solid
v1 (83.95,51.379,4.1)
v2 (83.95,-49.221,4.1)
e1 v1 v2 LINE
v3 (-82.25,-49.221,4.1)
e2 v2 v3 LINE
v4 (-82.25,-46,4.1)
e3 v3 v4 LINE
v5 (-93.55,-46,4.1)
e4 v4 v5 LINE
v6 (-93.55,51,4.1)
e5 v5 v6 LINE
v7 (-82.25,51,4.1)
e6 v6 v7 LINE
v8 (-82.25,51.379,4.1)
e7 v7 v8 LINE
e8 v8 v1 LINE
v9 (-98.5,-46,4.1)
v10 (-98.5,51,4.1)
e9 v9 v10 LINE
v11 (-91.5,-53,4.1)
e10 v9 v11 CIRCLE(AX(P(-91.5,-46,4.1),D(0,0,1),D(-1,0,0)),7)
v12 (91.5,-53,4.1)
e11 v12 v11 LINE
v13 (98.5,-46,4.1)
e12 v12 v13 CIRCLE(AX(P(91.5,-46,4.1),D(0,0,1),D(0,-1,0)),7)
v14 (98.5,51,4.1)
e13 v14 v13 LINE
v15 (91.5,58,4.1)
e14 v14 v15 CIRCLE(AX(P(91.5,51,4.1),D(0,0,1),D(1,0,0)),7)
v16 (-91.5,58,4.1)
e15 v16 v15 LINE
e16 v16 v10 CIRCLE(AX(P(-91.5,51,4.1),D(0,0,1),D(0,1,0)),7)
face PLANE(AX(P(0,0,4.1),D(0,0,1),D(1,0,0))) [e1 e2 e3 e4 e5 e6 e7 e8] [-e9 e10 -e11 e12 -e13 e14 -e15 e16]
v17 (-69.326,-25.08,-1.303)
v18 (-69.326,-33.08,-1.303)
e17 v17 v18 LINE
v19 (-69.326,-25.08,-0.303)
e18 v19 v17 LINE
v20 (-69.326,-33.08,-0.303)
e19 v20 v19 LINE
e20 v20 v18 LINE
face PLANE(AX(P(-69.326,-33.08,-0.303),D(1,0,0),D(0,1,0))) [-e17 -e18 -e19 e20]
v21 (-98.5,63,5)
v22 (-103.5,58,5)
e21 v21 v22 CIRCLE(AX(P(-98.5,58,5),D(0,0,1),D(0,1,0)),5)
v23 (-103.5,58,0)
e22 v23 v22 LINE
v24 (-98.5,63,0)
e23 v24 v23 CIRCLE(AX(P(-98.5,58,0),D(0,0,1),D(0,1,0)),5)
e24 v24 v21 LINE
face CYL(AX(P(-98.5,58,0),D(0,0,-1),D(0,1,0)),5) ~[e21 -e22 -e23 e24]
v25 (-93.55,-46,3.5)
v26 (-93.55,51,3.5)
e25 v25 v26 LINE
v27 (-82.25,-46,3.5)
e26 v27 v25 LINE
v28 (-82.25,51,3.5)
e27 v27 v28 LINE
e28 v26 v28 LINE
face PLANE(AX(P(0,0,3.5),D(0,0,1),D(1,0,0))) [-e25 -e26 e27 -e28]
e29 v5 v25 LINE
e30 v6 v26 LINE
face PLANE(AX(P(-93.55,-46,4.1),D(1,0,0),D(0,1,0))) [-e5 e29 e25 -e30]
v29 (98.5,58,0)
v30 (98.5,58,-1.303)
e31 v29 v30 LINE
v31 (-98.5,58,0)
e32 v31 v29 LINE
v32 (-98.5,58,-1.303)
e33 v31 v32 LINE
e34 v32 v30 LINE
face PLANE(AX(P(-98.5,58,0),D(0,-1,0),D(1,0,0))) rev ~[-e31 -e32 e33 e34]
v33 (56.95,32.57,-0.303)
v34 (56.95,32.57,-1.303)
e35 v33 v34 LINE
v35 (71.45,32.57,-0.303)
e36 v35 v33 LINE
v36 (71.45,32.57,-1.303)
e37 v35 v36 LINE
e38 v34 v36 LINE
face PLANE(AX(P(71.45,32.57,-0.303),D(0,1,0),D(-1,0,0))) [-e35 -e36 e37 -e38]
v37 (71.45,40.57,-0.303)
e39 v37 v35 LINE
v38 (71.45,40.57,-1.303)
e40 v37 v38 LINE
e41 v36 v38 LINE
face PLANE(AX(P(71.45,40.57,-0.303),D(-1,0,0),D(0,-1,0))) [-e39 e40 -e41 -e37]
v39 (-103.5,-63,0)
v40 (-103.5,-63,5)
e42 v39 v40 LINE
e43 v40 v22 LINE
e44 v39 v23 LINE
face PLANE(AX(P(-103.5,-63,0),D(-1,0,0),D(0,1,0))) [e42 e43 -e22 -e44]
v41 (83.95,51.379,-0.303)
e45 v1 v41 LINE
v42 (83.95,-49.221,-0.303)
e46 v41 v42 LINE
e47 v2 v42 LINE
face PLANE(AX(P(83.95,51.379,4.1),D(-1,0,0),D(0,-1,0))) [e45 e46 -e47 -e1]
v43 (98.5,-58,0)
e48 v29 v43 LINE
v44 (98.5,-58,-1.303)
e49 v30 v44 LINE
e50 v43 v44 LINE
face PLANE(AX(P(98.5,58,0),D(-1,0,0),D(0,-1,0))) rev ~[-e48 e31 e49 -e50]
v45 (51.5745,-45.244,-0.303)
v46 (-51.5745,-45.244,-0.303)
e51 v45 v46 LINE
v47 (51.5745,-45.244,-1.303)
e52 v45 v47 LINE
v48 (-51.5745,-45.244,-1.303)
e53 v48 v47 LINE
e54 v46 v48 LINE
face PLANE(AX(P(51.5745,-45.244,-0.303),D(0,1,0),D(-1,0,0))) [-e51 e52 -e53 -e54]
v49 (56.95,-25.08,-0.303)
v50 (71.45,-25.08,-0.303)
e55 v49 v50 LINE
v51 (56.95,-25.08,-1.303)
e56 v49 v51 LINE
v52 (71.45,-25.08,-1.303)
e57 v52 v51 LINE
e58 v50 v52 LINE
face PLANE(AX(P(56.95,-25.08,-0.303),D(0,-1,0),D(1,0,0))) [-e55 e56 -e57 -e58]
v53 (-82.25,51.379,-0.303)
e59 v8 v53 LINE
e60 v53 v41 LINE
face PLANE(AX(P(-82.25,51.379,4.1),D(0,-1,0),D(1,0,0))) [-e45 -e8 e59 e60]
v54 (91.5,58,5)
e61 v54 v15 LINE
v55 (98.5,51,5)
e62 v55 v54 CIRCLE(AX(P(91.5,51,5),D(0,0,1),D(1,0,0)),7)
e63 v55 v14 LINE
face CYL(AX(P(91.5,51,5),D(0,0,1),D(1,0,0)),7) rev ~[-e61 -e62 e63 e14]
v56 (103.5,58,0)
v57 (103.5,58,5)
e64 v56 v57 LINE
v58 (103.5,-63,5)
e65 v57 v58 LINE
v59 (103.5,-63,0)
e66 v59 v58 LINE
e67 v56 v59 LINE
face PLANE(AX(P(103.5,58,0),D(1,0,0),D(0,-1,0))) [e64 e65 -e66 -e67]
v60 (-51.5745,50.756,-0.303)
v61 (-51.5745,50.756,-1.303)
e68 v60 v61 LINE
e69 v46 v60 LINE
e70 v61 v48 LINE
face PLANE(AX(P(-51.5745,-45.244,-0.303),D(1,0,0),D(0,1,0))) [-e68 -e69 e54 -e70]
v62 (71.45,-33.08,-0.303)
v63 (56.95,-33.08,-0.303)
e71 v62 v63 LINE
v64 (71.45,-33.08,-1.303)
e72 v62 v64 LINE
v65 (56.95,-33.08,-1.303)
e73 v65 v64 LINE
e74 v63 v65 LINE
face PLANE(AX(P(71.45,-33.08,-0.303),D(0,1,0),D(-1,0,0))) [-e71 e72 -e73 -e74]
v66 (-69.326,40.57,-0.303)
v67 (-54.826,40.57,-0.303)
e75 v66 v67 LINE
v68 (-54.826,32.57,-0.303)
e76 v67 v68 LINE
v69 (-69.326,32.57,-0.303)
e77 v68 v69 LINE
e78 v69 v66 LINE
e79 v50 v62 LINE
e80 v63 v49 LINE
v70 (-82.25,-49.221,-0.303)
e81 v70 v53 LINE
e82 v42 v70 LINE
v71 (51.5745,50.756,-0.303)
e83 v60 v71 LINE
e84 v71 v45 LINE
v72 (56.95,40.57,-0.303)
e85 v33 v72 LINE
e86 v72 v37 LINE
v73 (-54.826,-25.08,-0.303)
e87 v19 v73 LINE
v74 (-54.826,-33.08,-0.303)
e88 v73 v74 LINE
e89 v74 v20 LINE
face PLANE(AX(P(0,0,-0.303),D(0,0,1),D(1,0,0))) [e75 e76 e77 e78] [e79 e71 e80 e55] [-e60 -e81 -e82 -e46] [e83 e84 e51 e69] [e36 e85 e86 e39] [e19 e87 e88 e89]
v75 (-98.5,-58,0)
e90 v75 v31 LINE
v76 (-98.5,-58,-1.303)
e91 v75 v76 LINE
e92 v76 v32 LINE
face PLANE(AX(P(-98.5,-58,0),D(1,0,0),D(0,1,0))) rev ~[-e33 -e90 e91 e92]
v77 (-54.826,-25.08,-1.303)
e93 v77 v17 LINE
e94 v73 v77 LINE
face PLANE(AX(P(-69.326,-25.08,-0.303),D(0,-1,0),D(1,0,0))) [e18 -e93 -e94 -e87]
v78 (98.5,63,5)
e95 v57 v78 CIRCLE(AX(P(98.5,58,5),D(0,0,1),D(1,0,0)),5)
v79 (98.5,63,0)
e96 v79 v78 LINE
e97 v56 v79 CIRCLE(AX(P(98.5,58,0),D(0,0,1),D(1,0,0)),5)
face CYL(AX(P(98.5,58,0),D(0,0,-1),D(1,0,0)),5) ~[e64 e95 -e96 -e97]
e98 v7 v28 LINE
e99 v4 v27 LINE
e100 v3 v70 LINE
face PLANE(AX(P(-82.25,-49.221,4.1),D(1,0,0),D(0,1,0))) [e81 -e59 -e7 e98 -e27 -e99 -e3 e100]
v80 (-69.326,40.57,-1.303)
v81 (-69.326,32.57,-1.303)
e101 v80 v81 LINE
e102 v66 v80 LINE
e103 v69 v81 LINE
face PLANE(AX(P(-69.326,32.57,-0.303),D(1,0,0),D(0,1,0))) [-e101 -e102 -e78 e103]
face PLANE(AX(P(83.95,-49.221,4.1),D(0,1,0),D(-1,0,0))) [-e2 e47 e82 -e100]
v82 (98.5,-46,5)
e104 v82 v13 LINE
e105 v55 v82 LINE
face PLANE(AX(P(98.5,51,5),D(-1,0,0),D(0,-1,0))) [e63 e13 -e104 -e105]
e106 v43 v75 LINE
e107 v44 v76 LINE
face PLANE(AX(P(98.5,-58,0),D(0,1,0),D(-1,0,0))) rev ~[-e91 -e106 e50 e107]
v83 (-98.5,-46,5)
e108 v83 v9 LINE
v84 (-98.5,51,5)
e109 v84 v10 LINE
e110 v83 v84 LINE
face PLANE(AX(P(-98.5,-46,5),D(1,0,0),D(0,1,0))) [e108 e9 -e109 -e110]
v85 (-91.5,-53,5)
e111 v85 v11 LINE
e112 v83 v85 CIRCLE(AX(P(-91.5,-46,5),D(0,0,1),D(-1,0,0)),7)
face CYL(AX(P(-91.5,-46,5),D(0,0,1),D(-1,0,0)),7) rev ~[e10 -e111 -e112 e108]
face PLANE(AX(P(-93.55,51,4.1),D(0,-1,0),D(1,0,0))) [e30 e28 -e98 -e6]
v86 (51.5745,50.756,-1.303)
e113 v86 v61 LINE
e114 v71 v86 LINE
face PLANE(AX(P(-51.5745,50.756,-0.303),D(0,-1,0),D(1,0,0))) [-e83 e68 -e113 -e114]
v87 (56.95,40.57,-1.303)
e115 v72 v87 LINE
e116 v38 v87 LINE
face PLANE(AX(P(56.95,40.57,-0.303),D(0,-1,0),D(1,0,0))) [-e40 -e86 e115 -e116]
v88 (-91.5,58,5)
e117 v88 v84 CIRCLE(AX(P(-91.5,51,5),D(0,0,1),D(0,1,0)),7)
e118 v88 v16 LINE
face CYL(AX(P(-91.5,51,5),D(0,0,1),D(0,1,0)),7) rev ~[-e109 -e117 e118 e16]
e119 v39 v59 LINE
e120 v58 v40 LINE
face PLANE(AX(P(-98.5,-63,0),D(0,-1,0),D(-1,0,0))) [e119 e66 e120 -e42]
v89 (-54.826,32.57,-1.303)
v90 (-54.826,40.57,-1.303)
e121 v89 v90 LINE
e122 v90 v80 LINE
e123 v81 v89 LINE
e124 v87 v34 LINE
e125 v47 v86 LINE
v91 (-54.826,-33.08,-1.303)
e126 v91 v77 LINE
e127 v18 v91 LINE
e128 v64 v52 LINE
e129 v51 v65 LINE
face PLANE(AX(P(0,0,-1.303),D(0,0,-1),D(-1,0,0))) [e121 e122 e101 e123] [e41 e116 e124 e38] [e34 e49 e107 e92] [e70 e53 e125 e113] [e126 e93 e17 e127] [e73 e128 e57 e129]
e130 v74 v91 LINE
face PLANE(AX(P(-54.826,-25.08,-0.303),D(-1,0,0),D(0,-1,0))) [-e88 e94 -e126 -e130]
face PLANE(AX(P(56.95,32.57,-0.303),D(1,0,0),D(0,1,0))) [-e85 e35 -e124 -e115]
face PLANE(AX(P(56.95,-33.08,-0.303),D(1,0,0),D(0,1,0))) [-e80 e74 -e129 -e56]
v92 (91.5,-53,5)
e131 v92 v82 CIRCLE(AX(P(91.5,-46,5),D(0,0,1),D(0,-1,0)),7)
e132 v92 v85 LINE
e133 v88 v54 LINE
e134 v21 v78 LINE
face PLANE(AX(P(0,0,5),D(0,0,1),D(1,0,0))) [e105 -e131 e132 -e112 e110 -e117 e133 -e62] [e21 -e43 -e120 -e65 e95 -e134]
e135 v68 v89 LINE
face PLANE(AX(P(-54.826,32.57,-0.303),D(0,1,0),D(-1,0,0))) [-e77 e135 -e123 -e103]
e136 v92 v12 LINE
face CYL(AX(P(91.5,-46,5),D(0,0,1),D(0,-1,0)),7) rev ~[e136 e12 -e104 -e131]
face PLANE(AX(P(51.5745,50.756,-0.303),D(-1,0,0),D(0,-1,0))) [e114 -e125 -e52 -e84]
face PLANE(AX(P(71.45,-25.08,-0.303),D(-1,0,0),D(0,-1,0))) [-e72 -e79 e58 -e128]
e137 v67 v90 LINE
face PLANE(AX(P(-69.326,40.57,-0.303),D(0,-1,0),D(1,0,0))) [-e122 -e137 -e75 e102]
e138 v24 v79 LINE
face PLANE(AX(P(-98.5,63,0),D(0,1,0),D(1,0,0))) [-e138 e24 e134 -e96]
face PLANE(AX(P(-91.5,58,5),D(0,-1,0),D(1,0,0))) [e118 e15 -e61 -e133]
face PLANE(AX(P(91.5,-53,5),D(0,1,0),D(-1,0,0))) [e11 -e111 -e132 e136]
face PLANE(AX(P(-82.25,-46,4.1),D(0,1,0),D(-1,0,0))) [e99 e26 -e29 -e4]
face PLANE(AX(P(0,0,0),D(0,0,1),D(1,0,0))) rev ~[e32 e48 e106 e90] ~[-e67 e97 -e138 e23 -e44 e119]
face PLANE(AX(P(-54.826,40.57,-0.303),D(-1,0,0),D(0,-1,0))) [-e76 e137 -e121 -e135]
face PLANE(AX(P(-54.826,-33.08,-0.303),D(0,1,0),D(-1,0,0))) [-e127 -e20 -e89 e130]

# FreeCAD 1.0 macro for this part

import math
import FreeCAD as App
import Part
import Sketcher

doc = App.newDocument("Part")
body = doc.addObject("PartDesign::Body", "Body")

sketch1 = body.newObject("Sketcher::SketchObject", "Sketch")
sketch1.AttachmentSupport = (doc.getObject("XY_Plane"), [""])
sketch1.MapMode = "FlatFace"
sketch1.addGeometry([
    Part.LineSegment(App.Vector(-104, 58, 0), App.Vector(-104, -63, 0)),
    Part.LineSegment(App.Vector(-104, -63, 0), App.Vector(104, -63, 0)),
    Part.LineSegment(App.Vector(104, -63, 0), App.Vector(104, 58, 0)),
    Part.ArcOfCircle(Part.Circle(App.Vector(98, 58, 0), App.Vector(0, 0, 1), 5), math.radians(0), math.radians(90)),
    Part.LineSegment(App.Vector(98, 63, 0), App.Vector(-98, 63, 0)),
    Part.ArcOfCircle(Part.Circle(App.Vector(-98, 58, 0), App.Vector(0, 0, 1), 5), math.radians(90), math.radians(180)),
], False)
sketch1.addConstraint([
    Sketcher.Constraint("Coincident", 0, 2, 1, 1),
    Sketcher.Constraint("Coincident", 1, 2, 2, 1),
    Sketcher.Constraint("Tangent", 2, 2, 3, 1),
    Sketcher.Constraint("Tangent", 3, 2, 4, 1),
    Sketcher.Constraint("Tangent", 4, 2, 5, 1),
    Sketcher.Constraint("Tangent", 5, 2, 0, 1),
    Sketcher.Constraint("Vertical", 0),
    Sketcher.Constraint("Horizontal", 1),
    Sketcher.Constraint("Vertical", 2),
    Sketcher.Constraint("Horizontal", 4),
    Sketcher.Constraint("Equal", 3, 5),
    Sketcher.Constraint("Radius", 3, 5.0),
    Sketcher.Constraint("DistanceX", 1, 1, 1, 2, 207.0),
    Sketcher.Constraint("DistanceY", 0, 2, 0, 1, 121.0),
    Sketcher.Constraint("DistanceY", -1, 1, 3, 3, 58.0),
    Sketcher.Constraint("DistanceX", -1, 1, 3, 3, 98.5),
])
pad1 = body.newObject("PartDesign::Pad", "Pad")
pad1.Profile = sketch1
pad1.Length = 5

sketch2 = body.newObject("Sketcher::SketchObject", "Sketch001")
sketch2.AttachmentSupport = (doc.getObject("XY_Plane"), [""])
sketch2.MapMode = "FlatFace"
sketch2.AttachmentOffset = App.Placement(App.Vector(0, 0, 5), App.Rotation())
sketch2.addGeometry([
    Part.LineSegment(App.Vector(92, 58, 0), App.Vector(-92, 58, 0)),
    Part.ArcOfCircle(Part.Circle(App.Vector(-92, 51, 0), App.Vector(0, 0, 1), 7), math.radians(90), math.radians(180)),
    Part.LineSegment(App.Vector(-98, 51, 0), App.Vector(-98, -46, 0)),
    Part.ArcOfCircle(Part.Circle(App.Vector(-92, -46, 0), App.Vector(0, 0, 1), 7), math.radians(180), math.radians(270)),
    Part.LineSegment(App.Vector(-92, -53, 0), App.Vector(92, -53, 0)),
    Part.ArcOfCircle(Part.Circle(App.Vector(92, -46, 0), App.Vector(0, 0, 1), 7), math.radians(-90), math.radians(0)),
    Part.LineSegment(App.Vector(98, -46, 0), App.Vector(98, 51, 0)),
    Part.ArcOfCircle(Part.Circle(App.Vector(92, 51, 0), App.Vector(0, 0, 1), 7), math.radians(0), math.radians(90)),
], False)
sketch2.addConstraint([
    Sketcher.Constraint("Tangent", 0, 2, 1, 1),
    Sketcher.Constraint("Tangent", 1, 2, 2, 1),
    Sketcher.Constraint("Tangent", 2, 2, 3, 1),
    Sketcher.Constraint("Tangent", 3, 2, 4, 1),
    Sketcher.Constraint("Tangent", 4, 2, 5, 1),
    Sketcher.Constraint("Tangent", 5, 2, 6, 1),
    Sketcher.Constraint("Tangent", 6, 2, 7, 1),
    Sketcher.Constraint("Tangent", 7, 2, 0, 1),
    Sketcher.Constraint("Horizontal", 0),
    Sketcher.Constraint("Vertical", 2),
    Sketcher.Constraint("Horizontal", 4),
    Sketcher.Constraint("Vertical", 6),
    Sketcher.Constraint("Equal", 1, 3),
    Sketcher.Constraint("Equal", 3, 5),
    Sketcher.Constraint("Equal", 5, 7),
    Sketcher.Constraint("Radius", 1, 7.0),
    Sketcher.Constraint("DistanceY", 3, 2, 0, 2, 111.0),
    Sketcher.Constraint("DistanceX", 0, 2, 0, 1, 183.0),
    Sketcher.Constraint("DistanceY", -1, 1, 1, 3, 51.0),
    Sketcher.Constraint("DistanceX", 1, 3, -1, 1, 91.5),
])
pocket1 = body.newObject("PartDesign::Pocket", "Pocket")
pocket1.Profile = sketch2
pocket1.Length = 0.9

sketch3 = body.newObject("Sketcher::SketchObject", "Sketch002")
sketch3.AttachmentSupport = (doc.getObject("XY_Plane"), [""])
sketch3.MapMode = "FlatFace"
sketch3.addGeometry([
    Part.LineSegment(App.Vector(-98, -58, 0), App.Vector(-98, 58, 0)),
    Part.LineSegment(App.Vector(-98, 58, 0), App.Vector(98, 58, 0)),
    Part.LineSegment(App.Vector(98, 58, 0), App.Vector(98, -58, 0)),
    Part.LineSegment(App.Vector(98, -58, 0), App.Vector(-98, -58, 0)),
], False)
sketch3.addConstraint([
    Sketcher.Constraint("Coincident", 0, 2, 1, 1),
    Sketcher.Constraint("Coincident", 1, 2, 2, 1),
    Sketcher.Constraint("Coincident", 2, 2, 3, 1),
    Sketcher.Constraint("Coincident", 3, 2, 0, 1),
    Sketcher.Constraint("Vertical", 0),
    Sketcher.Constraint("Horizontal", 1),
    Sketcher.Constraint("Vertical", 2),
    Sketcher.Constraint("Horizontal", 3),
    Sketcher.Constraint("Symmetric", 0, 2, 2, 2, -1, 1),
    Sketcher.Constraint("DistanceX", 1, 1, 1, 2, 197.0),
    Sketcher.Constraint("DistanceY", 0, 1, 0, 2, 116.0),
])
pad2 = body.newObject("PartDesign::Pad", "Pad001")
pad2.Profile = sketch3
pad2.Length = 1.303
pad2.Reversed = True

sketch4 = body.newObject("Sketcher::SketchObject", "Sketch003")
sketch4.AttachmentSupport = (doc.getObject("XY_Plane"), [""])
sketch4.MapMode = "FlatFace"
sketch4.AttachmentOffset = App.Placement(App.Vector(0, 0, 4.1), App.Rotation())
sketch4.addGeometry([
    Part.LineSegment(App.Vector(84, 51, 0), App.Vector(-82, 51, 0)),
    Part.LineSegment(App.Vector(-82, 51, 0), App.Vector(-82, -49, 0)),
    Part.LineSegment(App.Vector(-82, -49, 0), App.Vector(84, -49, 0)),
    Part.LineSegment(App.Vector(84, -49, 0), App.Vector(84, 51, 0)),
], False)
sketch4.addConstraint([
    Sketcher.Constraint("Coincident", 0, 2, 1, 1),
    Sketcher.Constraint("Coincident", 1, 2, 2, 1),
    Sketcher.Constraint("Coincident", 2, 2, 3, 1),
    Sketcher.Constraint("Coincident", 3, 2, 0, 1),
    Sketcher.Constraint("Horizontal", 0),
    Sketcher.Constraint("Vertical", 1),
    Sketcher.Constraint("Horizontal", 2),
    Sketcher.Constraint("Vertical", 3),
    Sketcher.Constraint("DistanceX", 0, 2, 0, 1, 166.2),
    Sketcher.Constraint("DistanceY", 1, 2, 1, 1, 100.6),
    Sketcher.Constraint("DistanceX", 0, 2, -1, 1, 82.25),
    Sketcher.Constraint("DistanceY", -1, 1, 0, 2, 51.379),
])
pocket2 = body.newObject("PartDesign::Pocket", "Pocket001")
pocket2.Profile = sketch4
pocket2.Length = 4.403

sketch5 = body.newObject("Sketcher::SketchObject", "Sketch004")
sketch5.AttachmentSupport = (doc.getObject("XY_Plane"), [""])
sketch5.MapMode = "FlatFace"
sketch5.AttachmentOffset = App.Placement(App.Vector(0, 0, 4.1), App.Rotation())
sketch5.addGeometry([
    Part.LineSegment(App.Vector(-82, 51, 0), App.Vector(-94, 51, 0)),
    Part.LineSegment(App.Vector(-94, 51, 0), App.Vector(-94, -46, 0)),
    Part.LineSegment(App.Vector(-94, -46, 0), App.Vector(-82, -46, 0)),
    Part.LineSegment(App.Vector(-82, -46, 0), App.Vector(-82, 51, 0)),
], False)
sketch5.addConstraint([
    Sketcher.Constraint("Coincident", 0, 2, 1, 1),
    Sketcher.Constraint("Coincident", 1, 2, 2, 1),
    Sketcher.Constraint("Coincident", 2, 2, 3, 1),
    Sketcher.Constraint("Coincident", 3, 2, 0, 1),
    Sketcher.Constraint("Horizontal", 0),
    Sketcher.Constraint("Vertical", 1),
    Sketcher.Constraint("Horizontal", 2),
    Sketcher.Constraint("Vertical", 3),
    Sketcher.Constraint("DistanceY", 1, 2, 1, 1, 97.0),
    Sketcher.Constraint("DistanceX", 0, 2, 0, 1, 11.3),
    Sketcher.Constraint("DistanceY", -1, 1, 0, 2, 51.0),
    Sketcher.Constraint("DistanceX", 0, 2, -1, 1, 93.55),
])
pocket3 = body.newObject("PartDesign::Pocket", "Pocket002")
pocket3.Profile = sketch5
pocket3.Length = 0.6

sketch6 = body.newObject("Sketcher::SketchObject", "Sketch005")
sketch6.AttachmentSupport = (doc.getObject("XY_Plane"), [""])
sketch6.MapMode = "FlatFace"
sketch6.AttachmentOffset = App.Placement(App.Vector(0, 0, -0.303), App.Rotation())
sketch6.addGeometry([
    Part.LineSegment(App.Vector(52, 51, 0), App.Vector(-52, 51, 0)),
    Part.LineSegment(App.Vector(-52, 51, 0), App.Vector(-52, -45, 0)),
    Part.LineSegment(App.Vector(-52, -45, 0), App.Vector(52, -45, 0)),
    Part.LineSegment(App.Vector(52, -45, 0), App.Vector(52, 51, 0)),
    Part.LineSegment(App.Vector(-55, 41, 0), App.Vector(-69, 41, 0)),
    Part.LineSegment(App.Vector(-69, 41, 0), App.Vector(-69, 33, 0)),
    Part.LineSegment(App.Vector(-69, 33, 0), App.Vector(-55, 33, 0)),
    Part.LineSegment(App.Vector(-55, 33, 0), App.Vector(-55, 41, 0)),
    Part.LineSegment(App.Vector(-55, -25, 0), App.Vector(-69, -25, 0)),
    Part.LineSegment(App.Vector(-69, -25, 0), App.Vector(-69, -33, 0)),
    Part.LineSegment(App.Vector(-69, -33, 0), App.Vector(-55, -33, 0)),
    Part.LineSegment(App.Vector(-55, -33, 0), App.Vector(-55, -25, 0)),
    Part.LineSegment(App.Vector(71, 41, 0), App.Vector(57, 41, 0)),
    Part.LineSegment(App.Vector(57, 41, 0), App.Vector(57, 33, 0)),
    Part.LineSegment(App.Vector(57, 33, 0), App.Vector(71, 33, 0)),
    Part.LineSegment(App.Vector(71, 33, 0), App.Vector(71, 41, 0)),
    Part.LineSegment(App.Vector(71, -25, 0), App.Vector(57, -25, 0)),
    Part.LineSegment(App.Vector(57, -25, 0), App.Vector(57, -33, 0)),
    Part.LineSegment(App.Vector(57, -33, 0), App.Vector(71, -33, 0)),
    Part.LineSegment(App.Vector(71, -33, 0), App.Vector(71, -25, 0)),
], False)
sketch6.addConstraint([
    Sketcher.Constraint("Coincident", 0, 2, 1, 1),
    Sketcher.Constraint("Coincident", 1, 2, 2, 1),
    Sketcher.Constraint("Coincident", 2, 2, 3, 1),
    Sketcher.Constraint("Coincident", 3, 2, 0, 1),
    Sketcher.Constraint("Coincident", 4, 2, 5, 1),
    Sketcher.Constraint("Coincident", 5, 2, 6, 1),
    Sketcher.Constraint("Coincident", 6, 2, 7, 1),
    Sketcher.Constraint("Coincident", 7, 2, 4, 1),
    Sketcher.Constraint("Coincident", 8, 2, 9, 1),
    Sketcher.Constraint("Coincident", 9, 2, 10, 1),
    Sketcher.Constraint("Coincident", 10, 2, 11, 1),
    Sketcher.Constraint("Coincident", 11, 2, 8, 1),
    Sketcher.Constraint("Coincident", 12, 2, 13, 1),
    Sketcher.Constraint("Coincident", 13, 2, 14, 1),
    Sketcher.Constraint("Coincident", 14, 2, 15, 1),
    Sketcher.Constraint("Coincident", 15, 2, 12, 1),
    Sketcher.Constraint("Coincident", 16, 2, 17, 1),
    Sketcher.Constraint("Coincident", 17, 2, 18, 1),
    Sketcher.Constraint("Coincident", 18, 2, 19, 1),
    Sketcher.Constraint("Coincident", 19, 2, 16, 1),
    Sketcher.Constraint("Horizontal", 0),
    Sketcher.Constraint("Vertical", 1),
    Sketcher.Constraint("Horizontal", 2),
    Sketcher.Constraint("Vertical", 3),
    Sketcher.Constraint("Horizontal", 4),
    Sketcher.Constraint("Vertical", 5),
    Sketcher.Constraint("Horizontal", 6),
    Sketcher.Constraint("Vertical", 7),
    Sketcher.Constraint("Horizontal", 8),
    Sketcher.Constraint("Vertical", 9),
    Sketcher.Constraint("Horizontal", 10),
    Sketcher.Constraint("Vertical", 11),
    Sketcher.Constraint("Horizontal", 12),
    Sketcher.Constraint("Vertical", 13),
    Sketcher.Constraint("Horizontal", 14),
    Sketcher.Constraint("Vertical", 15),
    Sketcher.Constraint("Horizontal", 16),
    Sketcher.Constraint("Vertical", 17),
    Sketcher.Constraint("Horizontal", 18),
    Sketcher.Constraint("Vertical", 19),
    Sketcher.Constraint("Horizontal", 7, 2, 12, 2),
    Sketcher.Constraint("Horizontal", 6, 2, 13, 2),
    Sketcher.Constraint("Horizontal", 11, 2, 16, 2),
    Sketcher.Constraint("Horizontal", 10, 2, 17, 2),
    Sketcher.Constraint("Vertical", 5, 2, 8, 2),
    Sketcher.Constraint("Vertical", 7, 2, 10, 2),
    Sketcher.Constraint("Vertical", 13, 2, 16, 2),
    Sketcher.Constraint("Vertical", 15, 2, 18, 2),
    Sketcher.Constraint("Equal", 10, 12),
    Sketcher.Constraint("Equal", 7, 9),
    Sketcher.Constraint("DistanceY", 1, 2, 1, 1, 96.0),
    Sketcher.Constraint("DistanceY", 5, 2, 5, 1, 8.0),
    Sketcher.Constraint("DistanceX", 4, 2, 4, 1, 14.5),
    Sketcher.Constraint("DistanceY", 8, 2, 4, 2, 65.65),
    Sketcher.Constraint("DistanceX", 0, 2, 0, 1, 103.149),
    Sketcher.Constraint("DistanceY", -1, 1, 4, 2, 40.57),
    Sketcher.Constraint("DistanceX", -1, 1, 12, 2, 56.95),
    Sketcher.Constraint("DistanceY", -1, 1, 0, 2, 50.756),
    Sketcher.Constraint("DistanceX", 4, 2, -1, 1, 69.326),
    Sketcher.Constraint("DistanceX", 0, 2, -1, 1, 51.5745),
])
pocket4 = body.newObject("PartDesign::Pocket", "Pocket003")
pocket4.Profile = sketch6
pocket4.Length = 2.5

doc.recompute()
